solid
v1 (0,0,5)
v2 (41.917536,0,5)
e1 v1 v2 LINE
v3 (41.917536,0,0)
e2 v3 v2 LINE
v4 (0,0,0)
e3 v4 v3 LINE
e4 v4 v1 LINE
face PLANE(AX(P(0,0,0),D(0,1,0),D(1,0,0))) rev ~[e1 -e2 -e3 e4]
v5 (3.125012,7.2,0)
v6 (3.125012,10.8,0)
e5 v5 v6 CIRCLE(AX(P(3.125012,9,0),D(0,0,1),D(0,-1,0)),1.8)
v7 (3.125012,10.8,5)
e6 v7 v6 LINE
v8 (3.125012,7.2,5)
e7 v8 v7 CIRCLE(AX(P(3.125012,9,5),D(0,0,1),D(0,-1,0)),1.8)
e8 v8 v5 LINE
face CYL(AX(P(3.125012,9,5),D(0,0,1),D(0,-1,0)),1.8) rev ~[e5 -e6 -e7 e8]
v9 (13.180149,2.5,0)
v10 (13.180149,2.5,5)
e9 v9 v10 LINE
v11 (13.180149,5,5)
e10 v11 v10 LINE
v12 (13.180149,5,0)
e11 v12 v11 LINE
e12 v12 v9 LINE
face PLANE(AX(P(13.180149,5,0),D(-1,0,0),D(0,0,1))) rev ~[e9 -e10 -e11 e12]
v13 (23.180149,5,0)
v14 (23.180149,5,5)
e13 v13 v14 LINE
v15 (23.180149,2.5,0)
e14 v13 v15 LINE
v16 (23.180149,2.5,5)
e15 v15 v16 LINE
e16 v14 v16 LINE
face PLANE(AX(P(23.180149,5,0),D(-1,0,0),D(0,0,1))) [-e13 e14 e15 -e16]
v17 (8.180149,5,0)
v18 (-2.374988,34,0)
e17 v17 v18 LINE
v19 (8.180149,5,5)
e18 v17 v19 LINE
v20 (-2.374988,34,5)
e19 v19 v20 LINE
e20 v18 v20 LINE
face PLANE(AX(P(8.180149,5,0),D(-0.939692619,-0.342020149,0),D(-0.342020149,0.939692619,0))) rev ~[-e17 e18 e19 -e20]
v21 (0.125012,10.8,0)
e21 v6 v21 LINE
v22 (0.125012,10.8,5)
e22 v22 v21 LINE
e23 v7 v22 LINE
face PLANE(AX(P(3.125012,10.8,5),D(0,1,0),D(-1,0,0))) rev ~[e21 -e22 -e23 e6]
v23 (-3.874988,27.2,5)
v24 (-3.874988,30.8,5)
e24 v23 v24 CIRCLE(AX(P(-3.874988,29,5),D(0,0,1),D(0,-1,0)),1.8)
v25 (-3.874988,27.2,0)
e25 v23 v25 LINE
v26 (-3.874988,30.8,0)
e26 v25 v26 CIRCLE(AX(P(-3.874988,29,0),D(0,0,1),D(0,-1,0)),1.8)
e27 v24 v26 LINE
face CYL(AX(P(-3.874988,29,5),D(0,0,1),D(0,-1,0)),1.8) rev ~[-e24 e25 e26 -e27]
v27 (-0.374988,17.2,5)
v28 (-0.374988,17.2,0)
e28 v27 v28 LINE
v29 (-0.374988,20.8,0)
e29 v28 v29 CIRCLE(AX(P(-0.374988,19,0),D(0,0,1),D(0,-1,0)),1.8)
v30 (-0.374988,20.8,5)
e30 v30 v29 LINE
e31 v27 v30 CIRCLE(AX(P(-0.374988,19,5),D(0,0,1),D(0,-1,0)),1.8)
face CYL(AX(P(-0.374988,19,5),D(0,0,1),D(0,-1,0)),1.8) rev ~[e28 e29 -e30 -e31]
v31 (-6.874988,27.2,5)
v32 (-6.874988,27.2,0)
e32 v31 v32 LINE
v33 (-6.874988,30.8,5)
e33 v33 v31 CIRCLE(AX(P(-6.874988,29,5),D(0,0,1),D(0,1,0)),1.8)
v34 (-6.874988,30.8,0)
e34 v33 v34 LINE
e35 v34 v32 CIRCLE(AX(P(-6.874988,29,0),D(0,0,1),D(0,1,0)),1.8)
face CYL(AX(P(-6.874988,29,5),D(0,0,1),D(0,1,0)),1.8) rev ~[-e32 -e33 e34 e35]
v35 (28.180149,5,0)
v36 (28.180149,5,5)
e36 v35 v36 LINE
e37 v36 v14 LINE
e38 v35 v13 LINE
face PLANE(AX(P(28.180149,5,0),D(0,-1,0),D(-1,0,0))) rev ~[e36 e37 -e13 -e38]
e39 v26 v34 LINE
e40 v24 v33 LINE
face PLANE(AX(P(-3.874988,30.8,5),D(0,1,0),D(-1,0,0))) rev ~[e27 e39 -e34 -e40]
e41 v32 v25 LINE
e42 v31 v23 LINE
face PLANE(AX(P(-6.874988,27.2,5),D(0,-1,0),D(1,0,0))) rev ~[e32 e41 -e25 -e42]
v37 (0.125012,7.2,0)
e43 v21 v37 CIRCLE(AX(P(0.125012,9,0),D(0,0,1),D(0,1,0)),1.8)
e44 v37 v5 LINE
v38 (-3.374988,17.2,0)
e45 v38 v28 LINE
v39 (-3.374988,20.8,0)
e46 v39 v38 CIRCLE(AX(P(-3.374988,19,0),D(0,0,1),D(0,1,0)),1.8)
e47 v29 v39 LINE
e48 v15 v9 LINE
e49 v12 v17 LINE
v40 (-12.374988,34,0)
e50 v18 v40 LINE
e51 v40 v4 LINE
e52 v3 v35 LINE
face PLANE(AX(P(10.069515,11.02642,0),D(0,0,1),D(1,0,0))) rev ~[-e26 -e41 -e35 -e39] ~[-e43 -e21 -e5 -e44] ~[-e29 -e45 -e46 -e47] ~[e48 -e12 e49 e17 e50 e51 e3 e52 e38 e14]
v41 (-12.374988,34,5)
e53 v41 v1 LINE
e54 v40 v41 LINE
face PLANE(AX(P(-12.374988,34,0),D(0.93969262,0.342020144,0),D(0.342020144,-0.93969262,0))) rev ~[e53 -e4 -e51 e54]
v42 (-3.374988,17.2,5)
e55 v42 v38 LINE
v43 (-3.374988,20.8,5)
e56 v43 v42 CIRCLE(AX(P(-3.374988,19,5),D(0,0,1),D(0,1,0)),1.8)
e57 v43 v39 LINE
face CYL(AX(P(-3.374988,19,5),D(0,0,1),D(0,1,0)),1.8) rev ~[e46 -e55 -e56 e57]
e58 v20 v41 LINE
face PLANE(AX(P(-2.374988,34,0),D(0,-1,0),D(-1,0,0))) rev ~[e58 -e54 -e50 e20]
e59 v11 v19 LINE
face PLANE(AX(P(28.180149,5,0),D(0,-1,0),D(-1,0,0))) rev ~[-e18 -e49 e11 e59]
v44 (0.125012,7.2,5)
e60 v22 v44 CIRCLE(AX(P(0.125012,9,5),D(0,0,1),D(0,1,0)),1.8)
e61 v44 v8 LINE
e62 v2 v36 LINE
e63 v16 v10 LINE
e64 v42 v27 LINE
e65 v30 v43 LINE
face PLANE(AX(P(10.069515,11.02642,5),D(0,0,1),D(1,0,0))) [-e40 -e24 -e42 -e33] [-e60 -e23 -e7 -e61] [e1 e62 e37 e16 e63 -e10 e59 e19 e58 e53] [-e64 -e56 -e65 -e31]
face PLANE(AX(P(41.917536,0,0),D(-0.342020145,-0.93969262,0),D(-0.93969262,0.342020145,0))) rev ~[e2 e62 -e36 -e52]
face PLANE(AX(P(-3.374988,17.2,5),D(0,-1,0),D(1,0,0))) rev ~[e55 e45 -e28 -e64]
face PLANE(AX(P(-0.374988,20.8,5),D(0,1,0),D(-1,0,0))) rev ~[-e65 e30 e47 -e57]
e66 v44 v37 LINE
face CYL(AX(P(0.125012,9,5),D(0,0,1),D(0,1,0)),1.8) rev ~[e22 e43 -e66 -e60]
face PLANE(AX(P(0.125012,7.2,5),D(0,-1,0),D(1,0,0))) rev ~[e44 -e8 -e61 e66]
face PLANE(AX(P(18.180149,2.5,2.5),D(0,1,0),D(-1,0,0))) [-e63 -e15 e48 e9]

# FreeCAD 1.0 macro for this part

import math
import FreeCAD as App
import Part
import Sketcher
from FreeCAD import Vector
Q = App.Units.Quantity


def add_polygon(sketch, points):
    """Adds a closed chain of lines whose ends are joined by coincident constraints."""
    first, n = sketch.GeometryCount, len(points)
    for a, b in zip(points, points[1:] + points[:1]):
        sketch.addGeometry(Part.LineSegment(App.Vector(*a, 0), App.Vector(*b, 0)), False)
    for i in range(n):
        sketch.addConstraint(Sketcher.Constraint("Coincident", first + i, 2, first + (i + 1) % n, 1))

doc = App.newDocument("Part")
params = doc.addObject("Spreadsheet::Sheet", "Params")
for row, (alias, value) in enumerate([
    ("sketch1_width", "20 mm"),
    ("sketch1_width2", "10 mm"),
    ("pad1_length", "5 mm"),
    ("sketch2_radius", "1.8 mm"),
    ("sketch2_width", "3 mm"),
    ("sketch3_width", "10 mm"),
    ("sketch3_height", "5 mm"),
    ("pocket2_length", "2.5 mm"),
], start=1):
    params.set(f"A{row}", alias)
    params.set(f"B{row}", "=" + value)
    params.setAlias(f"B{row}", alias)

body = doc.addObject("PartDesign::Body", "Body")

# Sketch on XY plane
sketch1 = doc.addObject("Sketcher::SketchObject", "Sketch")
body.addObject(sketch1)
sketch1.AttachmentSupport = (doc.XY_Plane, [""])
sketch1.MapMode = "FlatFace"
add_polygon(sketch1, [(-12, 34), (0, 0), (42, 0), (28, 5), (8, 5), (-2, 34)])  # lines 0-5
sketch1.addConstraint(Sketcher.Constraint("Horizontal", 1))
sketch1.addConstraint(Sketcher.Constraint("Horizontal", 3))
sketch1.addConstraint(Sketcher.Constraint("Horizontal", 5))
sketch1.addConstraint(Sketcher.Constraint("Coincident", 0, 2, -1, 1))
sketch1.addConstraint(Sketcher.Constraint("Parallel", 0, 4))
sketch1.addConstraint(Sketcher.Constraint("DistanceX", 3, 2, 3, 1, Q("20 mm")))
sketch1.addConstraint(Sketcher.Constraint("DistanceX", 5, 2, 5, 1, Q("10 mm")))
sketch1.addConstraint(Sketcher.Constraint("Angle", 0, Q("-70 deg")))
sketch1.addConstraint(Sketcher.Constraint("Angle", 2, Q("160 deg")))
sketch1.addConstraint(Sketcher.Constraint("DistanceY", -1, 1, 2, 2, Q("5 mm")))
sketch1.addConstraint(Sketcher.Constraint("DistanceY", -1, 1, 4, 2, Q("34 mm")))
sketch1.setExpression("Constraints[11]", "Params.sketch1_width")
sketch1.setExpression("Constraints[12]", "Params.sketch1_width2")
pad1 = doc.addObject("PartDesign::Pad", "Pad")
body.addObject(pad1)
pad1.Profile = sketch1
pad1.setExpression("Length", "Params.pad1_length")

# Sketch on XY plane
sketch2 = doc.addObject("Sketcher::SketchObject", "Sketch001")
body.addObject(sketch2)
sketch2.AttachmentSupport = (doc.XY_Plane, [""])
sketch2.MapMode = "FlatFace"
sketch2.AttachmentOffset = App.Placement(Vector(0, 0, 5), App.Rotation())
sketch2.addGeometry(Part.ArcOfCircle(Part.Circle(Vector(-6.9, 29, 0), Vector(0, 0, 1), 1.8), math.radians(90), math.radians(270)), False)
sketch2.addGeometry(Part.LineSegment(Vector(-6.9, 27.2, 0), Vector(-3.9, 27.2, 0)), False)
sketch2.addGeometry(Part.ArcOfCircle(Part.Circle(Vector(-3.9, 29, 0), Vector(0, 0, 1), 1.8), math.radians(-90), math.radians(90)), False)
sketch2.addGeometry(Part.LineSegment(Vector(-3.9, 30.8, 0), Vector(-6.9, 30.8, 0)), False)
sketch2.addGeometry(Part.ArcOfCircle(Part.Circle(Vector(-3.4, 19, 0), Vector(0, 0, 1), 1.8), math.radians(90), math.radians(270)), False)
sketch2.addGeometry(Part.LineSegment(Vector(-3.4, 17.2, 0), Vector(-0.4, 17.2, 0)), False)
sketch2.addGeometry(Part.ArcOfCircle(Part.Circle(Vector(-0.4, 19, 0), Vector(0, 0, 1), 1.8), math.radians(-90), math.radians(90)), False)
sketch2.addGeometry(Part.LineSegment(Vector(-0.4, 20.8, 0), Vector(-3.4, 20.8, 0)), False)
sketch2.addGeometry(Part.ArcOfCircle(Part.Circle(Vector(0.1, 9, 0), Vector(0, 0, 1), 1.8), math.radians(90), math.radians(270)), False)
sketch2.addGeometry(Part.LineSegment(Vector(0.1, 7.2, 0), Vector(3.1, 7.2, 0)), False)
sketch2.addGeometry(Part.ArcOfCircle(Part.Circle(Vector(3.1, 9, 0), Vector(0, 0, 1), 1.8), math.radians(-90), math.radians(90)), False)
sketch2.addGeometry(Part.LineSegment(Vector(3.1, 10.8, 0), Vector(0.1, 10.8, 0)), False)
sketch2.addConstraint(Sketcher.Constraint("Tangent", 0, 2, 1, 1))
sketch2.addConstraint(Sketcher.Constraint("Tangent", 1, 2, 2, 1))
sketch2.addConstraint(Sketcher.Constraint("Tangent", 2, 2, 3, 1))
sketch2.addConstraint(Sketcher.Constraint("Tangent", 3, 2, 0, 1))
sketch2.addConstraint(Sketcher.Constraint("Tangent", 4, 2, 5, 1))
sketch2.addConstraint(Sketcher.Constraint("Tangent", 5, 2, 6, 1))
sketch2.addConstraint(Sketcher.Constraint("Tangent", 6, 2, 7, 1))
sketch2.addConstraint(Sketcher.Constraint("Tangent", 7, 2, 4, 1))
sketch2.addConstraint(Sketcher.Constraint("Tangent", 8, 2, 9, 1))
sketch2.addConstraint(Sketcher.Constraint("Tangent", 9, 2, 10, 1))
sketch2.addConstraint(Sketcher.Constraint("Tangent", 10, 2, 11, 1))
sketch2.addConstraint(Sketcher.Constraint("Tangent", 11, 2, 8, 1))
sketch2.addConstraint(Sketcher.Constraint("Horizontal", 1))
sketch2.addConstraint(Sketcher.Constraint("Horizontal", 3))
sketch2.addConstraint(Sketcher.Constraint("Horizontal", 5))
sketch2.addConstraint(Sketcher.Constraint("Horizontal", 7))
sketch2.addConstraint(Sketcher.Constraint("Horizontal", 9))
sketch2.addConstraint(Sketcher.Constraint("Horizontal", 11))
sketch2.addConstraint(Sketcher.Constraint("Equal", 2, 4))
sketch2.addConstraint(Sketcher.Constraint("Equal", 6, 8))
sketch2.addConstraint(Sketcher.Constraint("Equal", 3, 5))
sketch2.addConstraint(Sketcher.Constraint("Equal", 7, 9))
sketch2.addConstraint(Sketcher.Constraint("Radius", 0, Q("1.8 mm")))
sketch2.addConstraint(Sketcher.Constraint("DistanceX", 1, 1, 1, 2, Q("3 mm")))
sketch2.addConstraint(Sketcher.Constraint("DistanceY", -1, 1, 0, 3, Q("29 mm")))
sketch2.addConstraint(Sketcher.Constraint("DistanceY", -1, 1, 4, 3, Q("19 mm")))
sketch2.addConstraint(Sketcher.Constraint("DistanceY", -1, 1, 8, 3, Q("9 mm")))
sketch2.addConstraint(Sketcher.Constraint("DistanceX", 2, 3, 8, 3, Q("4 mm")))
sketch2.addConstraint(Sketcher.Constraint("DistanceX", 2, 3, 4, 3, Q("0.5 mm")))
sketch2.addConstraint(Sketcher.Constraint("DistanceX", 2, 3, -1, 1, Q("3.874988 mm")))
sketch2.setExpression("Constraints[22]", "Params.sketch2_radius")
sketch2.setExpression("Constraints[23]", "Params.sketch2_width")
pocket1 = doc.addObject("PartDesign::Pocket", "Pocket")
body.addObject(pocket1)
pocket1.Profile = sketch2
pocket1.Type = "ThroughAll"

# Sketch on XZ plane
sketch3 = doc.addObject("Sketcher::SketchObject", "Sketch002")
body.addObject(sketch3)
sketch3.AttachmentSupport = (doc.XZ_Plane, [""])
sketch3.MapMode = "FlatFace"
sketch3.AttachmentOffset = App.Placement(Vector(0, 0, -5), App.Rotation())
add_polygon(sketch3, [(23, 5), (23, 0), (13, 0), (13, 5)])  # lines 0-3
sketch3.addConstraint(Sketcher.Constraint("Vertical", 0))
sketch3.addConstraint(Sketcher.Constraint("Horizontal", 1))
sketch3.addConstraint(Sketcher.Constraint("Vertical", 2))
sketch3.addConstraint(Sketcher.Constraint("Horizontal", 3))
sketch3.addConstraint(Sketcher.Constraint("PointOnObject", 0, 2, -1))
sketch3.addConstraint(Sketcher.Constraint("DistanceX", 1, 2, 1, 1, Q("10 mm")))
sketch3.addConstraint(Sketcher.Constraint("DistanceY", 0, 2, 0, 1, Q("5 mm")))
sketch3.addConstraint(Sketcher.Constraint("DistanceX", -1, 1, 0, 2, Q("23.180149 mm")))
sketch3.setExpression("Constraints[9]", "Params.sketch3_width")
sketch3.setExpression("Constraints[10]", "Params.sketch3_height")
pocket2 = doc.addObject("PartDesign::Pocket", "Pocket001")
body.addObject(pocket2)
pocket2.Profile = sketch3
pocket2.setExpression("Length", "Params.pocket2_length")
pocket2.Reversed = True

doc.recompute()
